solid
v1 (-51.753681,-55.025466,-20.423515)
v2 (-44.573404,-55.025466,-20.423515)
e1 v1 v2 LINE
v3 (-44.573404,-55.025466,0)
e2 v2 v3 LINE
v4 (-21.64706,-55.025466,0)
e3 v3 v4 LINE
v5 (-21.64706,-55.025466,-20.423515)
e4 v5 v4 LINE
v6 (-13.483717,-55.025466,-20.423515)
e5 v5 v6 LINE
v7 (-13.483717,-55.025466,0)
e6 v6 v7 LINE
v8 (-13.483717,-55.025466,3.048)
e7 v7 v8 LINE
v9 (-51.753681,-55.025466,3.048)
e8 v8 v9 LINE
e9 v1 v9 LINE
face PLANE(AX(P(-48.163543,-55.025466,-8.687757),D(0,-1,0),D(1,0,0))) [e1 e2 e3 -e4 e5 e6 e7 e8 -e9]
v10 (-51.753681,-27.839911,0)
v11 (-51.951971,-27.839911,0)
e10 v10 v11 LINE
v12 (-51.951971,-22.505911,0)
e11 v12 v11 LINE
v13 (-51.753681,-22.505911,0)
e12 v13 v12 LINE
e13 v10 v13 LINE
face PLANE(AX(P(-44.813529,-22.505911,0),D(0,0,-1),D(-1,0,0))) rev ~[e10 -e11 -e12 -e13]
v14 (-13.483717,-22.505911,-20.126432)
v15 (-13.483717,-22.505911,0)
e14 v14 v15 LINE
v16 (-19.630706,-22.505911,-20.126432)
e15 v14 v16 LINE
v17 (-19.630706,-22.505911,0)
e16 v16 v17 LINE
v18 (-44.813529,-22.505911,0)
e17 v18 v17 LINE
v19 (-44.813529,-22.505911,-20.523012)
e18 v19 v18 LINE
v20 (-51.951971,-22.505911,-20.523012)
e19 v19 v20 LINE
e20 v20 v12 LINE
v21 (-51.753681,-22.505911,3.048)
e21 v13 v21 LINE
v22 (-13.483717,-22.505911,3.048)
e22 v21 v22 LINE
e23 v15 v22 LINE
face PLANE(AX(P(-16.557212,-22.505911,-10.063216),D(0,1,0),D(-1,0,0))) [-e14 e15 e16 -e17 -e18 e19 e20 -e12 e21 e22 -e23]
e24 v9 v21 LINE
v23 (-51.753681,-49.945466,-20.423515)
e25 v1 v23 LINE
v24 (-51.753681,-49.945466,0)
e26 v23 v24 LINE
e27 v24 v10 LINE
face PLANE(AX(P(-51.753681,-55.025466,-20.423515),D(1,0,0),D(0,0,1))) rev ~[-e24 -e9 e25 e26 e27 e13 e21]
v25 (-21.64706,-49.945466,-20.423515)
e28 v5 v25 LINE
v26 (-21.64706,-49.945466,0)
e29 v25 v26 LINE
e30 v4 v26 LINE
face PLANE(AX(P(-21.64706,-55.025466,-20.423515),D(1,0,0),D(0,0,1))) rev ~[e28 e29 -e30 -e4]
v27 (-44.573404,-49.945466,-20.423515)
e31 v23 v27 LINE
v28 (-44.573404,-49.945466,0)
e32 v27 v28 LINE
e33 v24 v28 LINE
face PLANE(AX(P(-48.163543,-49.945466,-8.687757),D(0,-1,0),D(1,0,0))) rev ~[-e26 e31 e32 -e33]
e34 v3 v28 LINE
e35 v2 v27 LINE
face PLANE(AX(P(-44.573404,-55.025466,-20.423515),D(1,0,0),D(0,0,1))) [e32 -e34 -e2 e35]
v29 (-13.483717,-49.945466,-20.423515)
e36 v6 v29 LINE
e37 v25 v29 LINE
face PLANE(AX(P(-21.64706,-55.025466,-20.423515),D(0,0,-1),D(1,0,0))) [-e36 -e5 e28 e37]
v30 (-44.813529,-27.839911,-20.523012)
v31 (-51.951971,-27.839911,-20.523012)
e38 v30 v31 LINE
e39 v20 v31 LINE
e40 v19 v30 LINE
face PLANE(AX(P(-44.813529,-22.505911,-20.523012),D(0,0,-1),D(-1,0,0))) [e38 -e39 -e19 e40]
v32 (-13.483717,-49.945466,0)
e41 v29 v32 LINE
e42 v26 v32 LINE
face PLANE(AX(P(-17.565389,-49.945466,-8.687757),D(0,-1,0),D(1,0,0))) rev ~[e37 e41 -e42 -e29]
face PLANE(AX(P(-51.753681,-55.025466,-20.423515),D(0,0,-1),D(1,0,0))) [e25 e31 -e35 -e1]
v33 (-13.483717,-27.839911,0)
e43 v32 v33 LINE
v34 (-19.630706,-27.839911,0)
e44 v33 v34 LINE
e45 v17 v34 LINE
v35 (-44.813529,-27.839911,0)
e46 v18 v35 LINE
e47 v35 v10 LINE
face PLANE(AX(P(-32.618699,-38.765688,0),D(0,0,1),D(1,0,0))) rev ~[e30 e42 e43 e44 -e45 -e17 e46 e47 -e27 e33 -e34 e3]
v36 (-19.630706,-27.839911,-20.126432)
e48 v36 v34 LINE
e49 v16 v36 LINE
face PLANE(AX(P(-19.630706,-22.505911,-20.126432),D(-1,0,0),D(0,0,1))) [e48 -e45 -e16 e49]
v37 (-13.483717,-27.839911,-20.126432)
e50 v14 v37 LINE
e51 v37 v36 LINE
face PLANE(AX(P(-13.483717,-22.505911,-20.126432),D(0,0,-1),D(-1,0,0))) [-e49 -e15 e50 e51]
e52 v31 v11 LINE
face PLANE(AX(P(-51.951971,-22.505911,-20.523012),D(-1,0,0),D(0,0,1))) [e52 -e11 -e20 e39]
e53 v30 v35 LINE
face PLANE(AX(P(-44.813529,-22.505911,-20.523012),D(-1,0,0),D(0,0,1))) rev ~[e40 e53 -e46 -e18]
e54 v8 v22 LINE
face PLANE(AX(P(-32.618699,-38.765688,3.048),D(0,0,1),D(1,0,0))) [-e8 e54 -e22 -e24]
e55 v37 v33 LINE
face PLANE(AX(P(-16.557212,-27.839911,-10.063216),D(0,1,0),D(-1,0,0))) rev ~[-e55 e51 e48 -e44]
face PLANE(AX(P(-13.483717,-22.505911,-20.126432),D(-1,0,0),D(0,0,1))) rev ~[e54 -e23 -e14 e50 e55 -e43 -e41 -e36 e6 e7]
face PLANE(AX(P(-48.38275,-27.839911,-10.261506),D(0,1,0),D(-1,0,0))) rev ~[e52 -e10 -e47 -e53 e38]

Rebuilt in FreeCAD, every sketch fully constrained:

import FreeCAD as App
import Part
import Sketcher
Q = App.Units.Quantity

doc = App.newDocument("Part")
body = doc.addObject("PartDesign::Body", "Body")

# Sketch on XY plane
sketch1 = body.newObject("Sketcher::SketchObject", "Sketch")
sketch1.AttachmentSupport = (doc.getObject("XY_Plane"), [""])
sketch1.MapMode = "FlatFace"
sketch1.addGeometry([
    Part.LineSegment(App.Vector(-51.753681, -22.505911, 0), App.Vector(-51.753681, -55.025466, 0)),
    Part.LineSegment(App.Vector(-51.753681, -55.025466, 0), App.Vector(-13.483717, -55.025466, 0)),
    Part.LineSegment(App.Vector(-13.483717, -55.025466, 0), App.Vector(-13.483717, -22.505911, 0)),
    Part.LineSegment(App.Vector(-13.483717, -22.505911, 0), App.Vector(-51.753681, -22.505911, 0)),
], False)
sketch1.addConstraint([
    Sketcher.Constraint("Coincident", 0, 2, 1, 1),
    Sketcher.Constraint("Coincident", 1, 2, 2, 1),
    Sketcher.Constraint("Coincident", 2, 2, 3, 1),
    Sketcher.Constraint("Coincident", 3, 2, 0, 1),
    Sketcher.Constraint("Vertical", 0),
    Sketcher.Constraint("Horizontal", 1),
    Sketcher.Constraint("Vertical", 2),
    Sketcher.Constraint("Horizontal", 3),
    Sketcher.Constraint("DistanceX", 1, 1, 1, 2, 38.269964),
    Sketcher.Constraint("DistanceY", 0, 2, 0, 1, 32.519555),
    Sketcher.Constraint("DistanceX", 0, 2, -1, 1, 51.753681),
    Sketcher.Constraint("DistanceY", 2, 2, -1, 1, 22.505911),
])
pad1 = body.newObject("PartDesign::Pad", "Pad")
pad1.Profile = sketch1
pad1.Length = Q("0.12 in")

# Sketch on XZ plane
sketch2 = body.newObject("Sketcher::SketchObject", "Sketch001")
sketch2.AttachmentSupport = (doc.getObject("XZ_Plane"), [""])
sketch2.MapMode = "FlatFace"
sketch2.AttachmentOffset = App.Placement(App.Vector(0, 0, 22.505911), App.Rotation())
sketch2.addGeometry([
    Part.LineSegment(App.Vector(-13.483717, 0, 0), App.Vector(-13.483717, -20.126432, 0)),  # 0
    Part.LineSegment(App.Vector(-13.483717, -20.126432, 0), App.Vector(-19.630706, -20.126432, 0)),  # 1
    Part.LineSegment(App.Vector(-19.630706, -20.126432, 0), App.Vector(-19.630706, 0, 0)),  # 2
    Part.LineSegment(App.Vector(-19.630706, 0, 0), App.Vector(-13.483717, 0, 0)),  # 3
    Part.LineSegment(App.Vector(-44.813529, 0, 0), App.Vector(-44.813529, -20.523012, 0)),  # 4
    Part.LineSegment(App.Vector(-44.813529, -20.523012, 0), App.Vector(-51.951971, -20.523012, 0)),  # 5
    Part.LineSegment(App.Vector(-51.951971, -20.523012, 0), App.Vector(-51.951971, 0, 0)),  # 6
    Part.LineSegment(App.Vector(-51.951971, 0, 0), App.Vector(-44.813529, 0, 0)),  # 7
], False)
sketch2.addConstraint([
    Sketcher.Constraint("Coincident", 0, 2, 1, 1),
    Sketcher.Constraint("Coincident", 1, 2, 2, 1),
    Sketcher.Constraint("Coincident", 2, 2, 3, 1),
    Sketcher.Constraint("Coincident", 3, 2, 0, 1),
    Sketcher.Constraint("Coincident", 4, 2, 5, 1),
    Sketcher.Constraint("Coincident", 5, 2, 6, 1),
    Sketcher.Constraint("Coincident", 6, 2, 7, 1),
    Sketcher.Constraint("Coincident", 7, 2, 4, 1),
    Sketcher.Constraint("Vertical", 0),
    Sketcher.Constraint("Horizontal", 1),
    Sketcher.Constraint("Vertical", 2),
    Sketcher.Constraint("Horizontal", 3),
    Sketcher.Constraint("Vertical", 4),
    Sketcher.Constraint("Horizontal", 5),
    Sketcher.Constraint("Vertical", 6),
    Sketcher.Constraint("Horizontal", 7),
    Sketcher.Constraint("PointOnObject", 2, 2, -1),
    Sketcher.Constraint("PointOnObject", 6, 2, -1),
    Sketcher.Constraint("DistanceX", 1, 2, 1, 1, 6.146989),
    Sketcher.Constraint("DistanceY", 4, 2, 4, 1, 20.523012),
    Sketcher.Constraint("DistanceX", 5, 2, 5, 1, 7.138442),
    Sketcher.Constraint("DistanceY", 0, 2, 0, 1, 20.126432),
    Sketcher.Constraint("DistanceX", 4, 2, -1, 1, 44.813529),
    Sketcher.Constraint("DistanceX", 4, 2, 0, 2, 31.329812),
])
pad2 = body.newObject("PartDesign::Pad", "Pad001")
pad2.Profile = sketch2
pad2.Length = Q("0.21 in")

# Sketch on XZ plane
sketch3 = body.newObject("Sketcher::SketchObject", "Sketch002")
sketch3.AttachmentSupport = (doc.getObject("XZ_Plane"), [""])
sketch3.MapMode = "FlatFace"
sketch3.AttachmentOffset = App.Placement(App.Vector(0, 0, 55.025466), App.Rotation())
sketch3.addGeometry([
    Part.LineSegment(App.Vector(-51.753681, 3.048, 0), App.Vector(-51.753681, -20.423515, 0)),  # 0
    Part.LineSegment(App.Vector(-51.753681, -20.423515, 0), App.Vector(-44.573404, -20.423515, 0)),  # 1
    Part.LineSegment(App.Vector(-44.573404, -20.423515, 0), App.Vector(-44.573404, 3.048, 0)),  # 2
    Part.LineSegment(App.Vector(-44.573404, 3.048, 0), App.Vector(-51.753681, 3.048, 0)),  # 3
    Part.LineSegment(App.Vector(-21.64706, 3.048, 0), App.Vector(-21.64706, -20.423515, 0)),  # 4
    Part.LineSegment(App.Vector(-21.64706, -20.423515, 0), App.Vector(-13.483717, -20.423515, 0)),  # 5
    Part.LineSegment(App.Vector(-13.483717, -20.423515, 0), App.Vector(-13.483717, 3.048, 0)),  # 6
    Part.LineSegment(App.Vector(-13.483717, 3.048, 0), App.Vector(-21.64706, 3.048, 0)),  # 7
], False)
sketch3.addConstraint([
    Sketcher.Constraint("Coincident", 0, 2, 1, 1),
    Sketcher.Constraint("Coincident", 1, 2, 2, 1),
    Sketcher.Constraint("Coincident", 2, 2, 3, 1),
    Sketcher.Constraint("Coincident", 3, 2, 0, 1),
    Sketcher.Constraint("Coincident", 4, 2, 5, 1),
    Sketcher.Constraint("Coincident", 5, 2, 6, 1),
    Sketcher.Constraint("Coincident", 6, 2, 7, 1),
    Sketcher.Constraint("Coincident", 7, 2, 4, 1),
    Sketcher.Constraint("Vertical", 0),
    Sketcher.Constraint("Horizontal", 1),
    Sketcher.Constraint("Vertical", 2),
    Sketcher.Constraint("Horizontal", 3),
    Sketcher.Constraint("Vertical", 4),
    Sketcher.Constraint("Horizontal", 5),
    Sketcher.Constraint("Vertical", 6),
    Sketcher.Constraint("Horizontal", 7),
    Sketcher.Constraint("Horizontal", 1, 2, 4, 2),
    Sketcher.Constraint("Horizontal", 3, 2, 6, 2),
    Sketcher.Constraint("DistanceY", -1, 1, 2, 2, Q("0.12 in")),
    Sketcher.Constraint("DistanceX", 0, 2, 4, 2, Q("1.1853 in")),
    Sketcher.Constraint("DistanceX", 1, 1, 1, 2, 7.180277),
    Sketcher.Constraint("DistanceX", 5, 1, 5, 2, 8.163343),
    Sketcher.Constraint("DistanceY", 0, 2, 0, 1, 23.471515),
    Sketcher.Constraint("DistanceX", 0, 2, -1, 1, 51.753681),
])
pad3 = body.newObject("PartDesign::Pad", "Pad002")
pad3.Profile = sketch3
pad3.Length = Q("0.2 in")
pad3.Reversed = True

doc.recompute()
